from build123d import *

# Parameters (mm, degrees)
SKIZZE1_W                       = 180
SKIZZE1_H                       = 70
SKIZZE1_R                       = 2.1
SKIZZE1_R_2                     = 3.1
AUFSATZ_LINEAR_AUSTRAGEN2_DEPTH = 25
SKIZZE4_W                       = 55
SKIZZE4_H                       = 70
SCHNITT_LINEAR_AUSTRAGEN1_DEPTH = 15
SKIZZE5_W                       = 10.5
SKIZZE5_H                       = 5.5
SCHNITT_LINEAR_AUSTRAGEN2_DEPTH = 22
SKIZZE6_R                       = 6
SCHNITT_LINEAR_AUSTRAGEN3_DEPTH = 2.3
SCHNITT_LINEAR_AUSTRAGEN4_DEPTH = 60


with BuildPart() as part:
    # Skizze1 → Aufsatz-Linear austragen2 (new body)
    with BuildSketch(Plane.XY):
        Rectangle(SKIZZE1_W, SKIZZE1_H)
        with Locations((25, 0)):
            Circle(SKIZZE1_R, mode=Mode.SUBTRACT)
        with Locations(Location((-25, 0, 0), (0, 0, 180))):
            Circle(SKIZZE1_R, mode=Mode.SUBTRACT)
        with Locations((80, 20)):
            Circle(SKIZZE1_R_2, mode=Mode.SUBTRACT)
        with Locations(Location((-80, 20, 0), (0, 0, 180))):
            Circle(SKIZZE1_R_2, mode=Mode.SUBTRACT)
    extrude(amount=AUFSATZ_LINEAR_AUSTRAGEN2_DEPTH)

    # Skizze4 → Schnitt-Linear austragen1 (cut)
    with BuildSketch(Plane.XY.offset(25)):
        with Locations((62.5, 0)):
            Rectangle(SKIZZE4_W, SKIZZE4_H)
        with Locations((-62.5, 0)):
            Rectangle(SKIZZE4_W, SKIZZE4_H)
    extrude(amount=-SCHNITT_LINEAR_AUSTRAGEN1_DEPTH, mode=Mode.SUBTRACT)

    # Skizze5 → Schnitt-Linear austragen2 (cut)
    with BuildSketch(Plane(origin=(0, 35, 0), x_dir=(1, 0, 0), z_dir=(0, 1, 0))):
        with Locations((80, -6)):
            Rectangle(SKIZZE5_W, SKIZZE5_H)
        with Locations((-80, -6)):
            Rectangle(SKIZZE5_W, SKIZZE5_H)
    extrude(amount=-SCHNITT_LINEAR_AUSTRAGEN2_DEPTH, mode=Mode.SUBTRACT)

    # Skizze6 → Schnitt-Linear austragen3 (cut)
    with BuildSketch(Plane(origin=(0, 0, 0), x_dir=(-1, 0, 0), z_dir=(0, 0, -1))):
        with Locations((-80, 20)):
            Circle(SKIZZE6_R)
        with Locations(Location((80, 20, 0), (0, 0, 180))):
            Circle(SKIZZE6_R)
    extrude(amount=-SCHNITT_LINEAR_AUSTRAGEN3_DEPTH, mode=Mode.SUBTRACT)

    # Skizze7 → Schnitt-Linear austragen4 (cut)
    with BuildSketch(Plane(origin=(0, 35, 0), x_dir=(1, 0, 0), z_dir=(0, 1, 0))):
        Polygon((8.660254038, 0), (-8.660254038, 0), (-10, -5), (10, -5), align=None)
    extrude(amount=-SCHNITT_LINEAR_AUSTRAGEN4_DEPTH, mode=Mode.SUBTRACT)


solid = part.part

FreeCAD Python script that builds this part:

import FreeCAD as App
import Part
import Sketcher

V = App.Vector
Q = App.Units.Quantity


def add_polygon(sketch, points):
    """Adds a closed chain of lines whose ends are joined by coincident constraints."""
    first, n = sketch.GeometryCount, len(points)
    for a, b in zip(points, points[1:] + points[:1]):
        sketch.addGeometry(Part.LineSegment(App.Vector(*a, 0), App.Vector(*b, 0)), False)
    for i in range(n):
        sketch.addConstraint(Sketcher.Constraint("Coincident", first + i, 2, first + (i + 1) % n, 1))

doc = App.newDocument("Part")
body = doc.addObject("PartDesign::Body", "Body")

sketch1 = body.newObject("Sketcher::SketchObject", "Sketch")
sketch1.AttachmentSupport = (doc.getObject("XY_Plane"), [""])
sketch1.MapMode = "FlatFace"
add_polygon(sketch1, [(-90, 35), (-90, -35), (90, -35), (90, 35)])
sketch1.addGeometry(Part.Circle(V(-25, 0, 0), V(0, 0, 1), 2.1), False)
sketch1.addGeometry(Part.Circle(V(25, 0, 0), V(0, 0, 1), 2.1), False)
sketch1.addGeometry(Part.Circle(V(-80, 20, 0), V(0, 0, 1), 3.1), False)
sketch1.addGeometry(Part.Circle(V(80, 20, 0), V(0, 0, 1), 3.1), False)
sketch1.addConstraint(Sketcher.Constraint("Vertical", 0))
sketch1.addConstraint(Sketcher.Constraint("Horizontal", 1))
sketch1.addConstraint(Sketcher.Constraint("Vertical", 2))
sketch1.addConstraint(Sketcher.Constraint("Horizontal", 3))
sketch1.addConstraint(Sketcher.Constraint("Equal", 4, 5))
sketch1.addConstraint(Sketcher.Constraint("Equal", 6, 7))
sketch1.addConstraint(Sketcher.Constraint("Symmetric", 4, 3, 5, 3, -1, 1))
sketch1.addConstraint(Sketcher.Constraint("Symmetric", 0, 2, 2, 2, -1, 1))
sketch1.addConstraint(Sketcher.Constraint("Symmetric", 6, 3, 7, 3, -2))
sketch1.addConstraint(Sketcher.Constraint("PointOnObject", 4, 3, -1))
sketch1.addConstraint(Sketcher.Constraint("Diameter", 4, Q("4.2 mm")))
sketch1.addConstraint(Sketcher.Constraint("Diameter", 6, Q("6.2 mm")))
sketch1.addConstraint(Sketcher.Constraint("DistanceX", 1, 1, 1, 2, Q("180 mm")))
sketch1.addConstraint(Sketcher.Constraint("DistanceY", 0, 2, 0, 1, Q("70 mm")))
sketch1.addConstraint(Sketcher.Constraint("DistanceX", 4, 3, -1, 1, Q("25 mm")))
sketch1.addConstraint(Sketcher.Constraint("DistanceX", 6, 3, -1, 1, Q("80 mm")))
sketch1.addConstraint(Sketcher.Constraint("DistanceY", -1, 1, 6, 3, Q("20 mm")))
pad1 = body.newObject("PartDesign::Pad", "Pad")
pad1.Profile = sketch1
pad1.Length = 25

sketch2 = body.newObject("Sketcher::SketchObject", "Sketch001")
sketch2.AttachmentSupport = (doc.getObject("XY_Plane"), [""])
sketch2.MapMode = "FlatFace"
sketch2.AttachmentOffset = App.Placement(V(0, 0, 25), App.Rotation())
add_polygon(sketch2, [(35, 35), (35, -35), (90, -35), (90, 35)])
add_polygon(sketch2, [(-90, 35), (-90, -35), (-35, -35), (-35, 35)])
sketch2.addConstraint(Sketcher.Constraint("Vertical", 0))
sketch2.addConstraint(Sketcher.Constraint("Horizontal", 1))
sketch2.addConstraint(Sketcher.Constraint("Vertical", 2))
sketch2.addConstraint(Sketcher.Constraint("Horizontal", 3))
sketch2.addConstraint(Sketcher.Constraint("Vertical", 4))
sketch2.addConstraint(Sketcher.Constraint("Horizontal", 5))
sketch2.addConstraint(Sketcher.Constraint("Vertical", 6))
sketch2.addConstraint(Sketcher.Constraint("Horizontal", 7))
sketch2.addConstraint(Sketcher.Constraint("Symmetric", 2, 2, 4, 2, -1, 1))
sketch2.addConstraint(Sketcher.Constraint("Symmetric", 0, 2, 6, 2, -1, 1))
sketch2.addConstraint(Sketcher.Constraint("Horizontal", 1, 2, 4, 2))
sketch2.addConstraint(Sketcher.Constraint("DistanceX", 1, 1, 1, 2, Q("55 mm")))
sketch2.addConstraint(Sketcher.Constraint("DistanceY", 0, 2, 0, 1, Q("70 mm")))
sketch2.addConstraint(Sketcher.Constraint("DistanceX", -1, 1, 0, 2, Q("35 mm")))
pocket1 = body.newObject("PartDesign::Pocket", "Pocket")
pocket1.Profile = sketch2
pocket1.Length = 15

sketch3 = body.newObject("Sketcher::SketchObject", "Sketch002")
sketch3.AttachmentSupport = (doc.getObject("XZ_Plane"), [""])
sketch3.MapMode = "FlatFace"
sketch3.AttachmentOffset = App.Placement(V(0, 0, -35), App.Rotation())
add_polygon(sketch3, [(75, 3), (75, 9), (85, 9), (85, 3)])
add_polygon(sketch3, [(-85, 3), (-85, 9), (-75, 9), (-75, 3)])
sketch3.addConstraint(Sketcher.Constraint("Vertical", 0))
sketch3.addConstraint(Sketcher.Constraint("Horizontal", 1))
sketch3.addConstraint(Sketcher.Constraint("Vertical", 2))
sketch3.addConstraint(Sketcher.Constraint("Horizontal", 3))
sketch3.addConstraint(Sketcher.Constraint("Vertical", 4))
sketch3.addConstraint(Sketcher.Constraint("Horizontal", 5))
sketch3.addConstraint(Sketcher.Constraint("Vertical", 6))
sketch3.addConstraint(Sketcher.Constraint("Horizontal", 7))
sketch3.addConstraint(Sketcher.Constraint("Symmetric", 1, 2, 4, 2, -2))
sketch3.addConstraint(Sketcher.Constraint("Symmetric", 3, 2, 6, 2, -2))
sketch3.addConstraint(Sketcher.Constraint("DistanceX", 1, 1, 1, 2, Q("10.5 mm")))
sketch3.addConstraint(Sketcher.Constraint("DistanceY", 0, 1, 0, 2, Q("5.5 mm")))
sketch3.addConstraint(Sketcher.Constraint("DistanceX", 4, 2, 0, 2, Q("160 mm")))
sketch3.addConstraint(Sketcher.Constraint("DistanceY", -1, 1, 0, 2, Q("8.75 mm")))
pocket2 = body.newObject("PartDesign::Pocket", "Pocket001")
pocket2.Profile = sketch3
pocket2.Length = 22
pocket2.Reversed = True

sketch4 = body.newObject("Sketcher::SketchObject", "Sketch003")
sketch4.AttachmentSupport = (doc.getObject("XY_Plane"), [""])
sketch4.MapMode = "FlatFace"
sketch4.addGeometry(Part.Circle(V(80, 20, 0), V(0, 0, 1), 6), False)
sketch4.addGeometry(Part.Circle(V(-80, 20, 0), V(0, 0, 1), 6), False)
sketch4.addConstraint(Sketcher.Constraint("Equal", 0, 1))
sketch4.addConstraint(Sketcher.Constraint("Symmetric", 0, 3, 1, 3, -2))
sketch4.addConstraint(Sketcher.Constraint("Diameter", 0, Q("12 mm")))
sketch4.addConstraint(Sketcher.Constraint("DistanceX", -1, 1, 0, 3, Q("80 mm")))
sketch4.addConstraint(Sketcher.Constraint("DistanceY", -1, 1, 0, 3, Q("20 mm")))
pocket3 = body.newObject("PartDesign::Pocket", "Pocket002")
pocket3.Profile = sketch4
pocket3.Length = 2.3
pocket3.Reversed = True

sketch5 = body.newObject("Sketcher::SketchObject", "Sketch004")
sketch5.AttachmentSupport = (doc.getObject("XZ_Plane"), [""])
sketch5.MapMode = "FlatFace"
sketch5.AttachmentOffset = App.Placement(V(0, 0, -35), App.Rotation())
add_polygon(sketch5, [(9, 0), (-9, 0), (-10, 5), (10, 5)])
sketch5.addConstraint(Sketcher.Constraint("Horizontal", 0))
sketch5.addConstraint(Sketcher.Constraint("Horizontal", 2))
sketch5.addConstraint(Sketcher.Constraint("Symmetric", 0, 2, 3, 2, -1, 1))
sketch5.addConstraint(Sketcher.Constraint("Equal", 1, 3))
sketch5.addConstraint(Sketcher.Constraint("DistanceX", 2, 1, 2, 2, Q("20 mm")))
sketch5.addConstraint(Sketcher.Constraint("Angle", 1, Q("105 deg")))
sketch5.addConstraint(Sketcher.Constraint("DistanceY", -1, 1, 1, 2, Q("5 mm")))
pocket4 = body.newObject("PartDesign::Pocket", "Pocket003")
pocket4.Profile = sketch5
pocket4.Length = 60
pocket4.Reversed = True

doc.recompute()
